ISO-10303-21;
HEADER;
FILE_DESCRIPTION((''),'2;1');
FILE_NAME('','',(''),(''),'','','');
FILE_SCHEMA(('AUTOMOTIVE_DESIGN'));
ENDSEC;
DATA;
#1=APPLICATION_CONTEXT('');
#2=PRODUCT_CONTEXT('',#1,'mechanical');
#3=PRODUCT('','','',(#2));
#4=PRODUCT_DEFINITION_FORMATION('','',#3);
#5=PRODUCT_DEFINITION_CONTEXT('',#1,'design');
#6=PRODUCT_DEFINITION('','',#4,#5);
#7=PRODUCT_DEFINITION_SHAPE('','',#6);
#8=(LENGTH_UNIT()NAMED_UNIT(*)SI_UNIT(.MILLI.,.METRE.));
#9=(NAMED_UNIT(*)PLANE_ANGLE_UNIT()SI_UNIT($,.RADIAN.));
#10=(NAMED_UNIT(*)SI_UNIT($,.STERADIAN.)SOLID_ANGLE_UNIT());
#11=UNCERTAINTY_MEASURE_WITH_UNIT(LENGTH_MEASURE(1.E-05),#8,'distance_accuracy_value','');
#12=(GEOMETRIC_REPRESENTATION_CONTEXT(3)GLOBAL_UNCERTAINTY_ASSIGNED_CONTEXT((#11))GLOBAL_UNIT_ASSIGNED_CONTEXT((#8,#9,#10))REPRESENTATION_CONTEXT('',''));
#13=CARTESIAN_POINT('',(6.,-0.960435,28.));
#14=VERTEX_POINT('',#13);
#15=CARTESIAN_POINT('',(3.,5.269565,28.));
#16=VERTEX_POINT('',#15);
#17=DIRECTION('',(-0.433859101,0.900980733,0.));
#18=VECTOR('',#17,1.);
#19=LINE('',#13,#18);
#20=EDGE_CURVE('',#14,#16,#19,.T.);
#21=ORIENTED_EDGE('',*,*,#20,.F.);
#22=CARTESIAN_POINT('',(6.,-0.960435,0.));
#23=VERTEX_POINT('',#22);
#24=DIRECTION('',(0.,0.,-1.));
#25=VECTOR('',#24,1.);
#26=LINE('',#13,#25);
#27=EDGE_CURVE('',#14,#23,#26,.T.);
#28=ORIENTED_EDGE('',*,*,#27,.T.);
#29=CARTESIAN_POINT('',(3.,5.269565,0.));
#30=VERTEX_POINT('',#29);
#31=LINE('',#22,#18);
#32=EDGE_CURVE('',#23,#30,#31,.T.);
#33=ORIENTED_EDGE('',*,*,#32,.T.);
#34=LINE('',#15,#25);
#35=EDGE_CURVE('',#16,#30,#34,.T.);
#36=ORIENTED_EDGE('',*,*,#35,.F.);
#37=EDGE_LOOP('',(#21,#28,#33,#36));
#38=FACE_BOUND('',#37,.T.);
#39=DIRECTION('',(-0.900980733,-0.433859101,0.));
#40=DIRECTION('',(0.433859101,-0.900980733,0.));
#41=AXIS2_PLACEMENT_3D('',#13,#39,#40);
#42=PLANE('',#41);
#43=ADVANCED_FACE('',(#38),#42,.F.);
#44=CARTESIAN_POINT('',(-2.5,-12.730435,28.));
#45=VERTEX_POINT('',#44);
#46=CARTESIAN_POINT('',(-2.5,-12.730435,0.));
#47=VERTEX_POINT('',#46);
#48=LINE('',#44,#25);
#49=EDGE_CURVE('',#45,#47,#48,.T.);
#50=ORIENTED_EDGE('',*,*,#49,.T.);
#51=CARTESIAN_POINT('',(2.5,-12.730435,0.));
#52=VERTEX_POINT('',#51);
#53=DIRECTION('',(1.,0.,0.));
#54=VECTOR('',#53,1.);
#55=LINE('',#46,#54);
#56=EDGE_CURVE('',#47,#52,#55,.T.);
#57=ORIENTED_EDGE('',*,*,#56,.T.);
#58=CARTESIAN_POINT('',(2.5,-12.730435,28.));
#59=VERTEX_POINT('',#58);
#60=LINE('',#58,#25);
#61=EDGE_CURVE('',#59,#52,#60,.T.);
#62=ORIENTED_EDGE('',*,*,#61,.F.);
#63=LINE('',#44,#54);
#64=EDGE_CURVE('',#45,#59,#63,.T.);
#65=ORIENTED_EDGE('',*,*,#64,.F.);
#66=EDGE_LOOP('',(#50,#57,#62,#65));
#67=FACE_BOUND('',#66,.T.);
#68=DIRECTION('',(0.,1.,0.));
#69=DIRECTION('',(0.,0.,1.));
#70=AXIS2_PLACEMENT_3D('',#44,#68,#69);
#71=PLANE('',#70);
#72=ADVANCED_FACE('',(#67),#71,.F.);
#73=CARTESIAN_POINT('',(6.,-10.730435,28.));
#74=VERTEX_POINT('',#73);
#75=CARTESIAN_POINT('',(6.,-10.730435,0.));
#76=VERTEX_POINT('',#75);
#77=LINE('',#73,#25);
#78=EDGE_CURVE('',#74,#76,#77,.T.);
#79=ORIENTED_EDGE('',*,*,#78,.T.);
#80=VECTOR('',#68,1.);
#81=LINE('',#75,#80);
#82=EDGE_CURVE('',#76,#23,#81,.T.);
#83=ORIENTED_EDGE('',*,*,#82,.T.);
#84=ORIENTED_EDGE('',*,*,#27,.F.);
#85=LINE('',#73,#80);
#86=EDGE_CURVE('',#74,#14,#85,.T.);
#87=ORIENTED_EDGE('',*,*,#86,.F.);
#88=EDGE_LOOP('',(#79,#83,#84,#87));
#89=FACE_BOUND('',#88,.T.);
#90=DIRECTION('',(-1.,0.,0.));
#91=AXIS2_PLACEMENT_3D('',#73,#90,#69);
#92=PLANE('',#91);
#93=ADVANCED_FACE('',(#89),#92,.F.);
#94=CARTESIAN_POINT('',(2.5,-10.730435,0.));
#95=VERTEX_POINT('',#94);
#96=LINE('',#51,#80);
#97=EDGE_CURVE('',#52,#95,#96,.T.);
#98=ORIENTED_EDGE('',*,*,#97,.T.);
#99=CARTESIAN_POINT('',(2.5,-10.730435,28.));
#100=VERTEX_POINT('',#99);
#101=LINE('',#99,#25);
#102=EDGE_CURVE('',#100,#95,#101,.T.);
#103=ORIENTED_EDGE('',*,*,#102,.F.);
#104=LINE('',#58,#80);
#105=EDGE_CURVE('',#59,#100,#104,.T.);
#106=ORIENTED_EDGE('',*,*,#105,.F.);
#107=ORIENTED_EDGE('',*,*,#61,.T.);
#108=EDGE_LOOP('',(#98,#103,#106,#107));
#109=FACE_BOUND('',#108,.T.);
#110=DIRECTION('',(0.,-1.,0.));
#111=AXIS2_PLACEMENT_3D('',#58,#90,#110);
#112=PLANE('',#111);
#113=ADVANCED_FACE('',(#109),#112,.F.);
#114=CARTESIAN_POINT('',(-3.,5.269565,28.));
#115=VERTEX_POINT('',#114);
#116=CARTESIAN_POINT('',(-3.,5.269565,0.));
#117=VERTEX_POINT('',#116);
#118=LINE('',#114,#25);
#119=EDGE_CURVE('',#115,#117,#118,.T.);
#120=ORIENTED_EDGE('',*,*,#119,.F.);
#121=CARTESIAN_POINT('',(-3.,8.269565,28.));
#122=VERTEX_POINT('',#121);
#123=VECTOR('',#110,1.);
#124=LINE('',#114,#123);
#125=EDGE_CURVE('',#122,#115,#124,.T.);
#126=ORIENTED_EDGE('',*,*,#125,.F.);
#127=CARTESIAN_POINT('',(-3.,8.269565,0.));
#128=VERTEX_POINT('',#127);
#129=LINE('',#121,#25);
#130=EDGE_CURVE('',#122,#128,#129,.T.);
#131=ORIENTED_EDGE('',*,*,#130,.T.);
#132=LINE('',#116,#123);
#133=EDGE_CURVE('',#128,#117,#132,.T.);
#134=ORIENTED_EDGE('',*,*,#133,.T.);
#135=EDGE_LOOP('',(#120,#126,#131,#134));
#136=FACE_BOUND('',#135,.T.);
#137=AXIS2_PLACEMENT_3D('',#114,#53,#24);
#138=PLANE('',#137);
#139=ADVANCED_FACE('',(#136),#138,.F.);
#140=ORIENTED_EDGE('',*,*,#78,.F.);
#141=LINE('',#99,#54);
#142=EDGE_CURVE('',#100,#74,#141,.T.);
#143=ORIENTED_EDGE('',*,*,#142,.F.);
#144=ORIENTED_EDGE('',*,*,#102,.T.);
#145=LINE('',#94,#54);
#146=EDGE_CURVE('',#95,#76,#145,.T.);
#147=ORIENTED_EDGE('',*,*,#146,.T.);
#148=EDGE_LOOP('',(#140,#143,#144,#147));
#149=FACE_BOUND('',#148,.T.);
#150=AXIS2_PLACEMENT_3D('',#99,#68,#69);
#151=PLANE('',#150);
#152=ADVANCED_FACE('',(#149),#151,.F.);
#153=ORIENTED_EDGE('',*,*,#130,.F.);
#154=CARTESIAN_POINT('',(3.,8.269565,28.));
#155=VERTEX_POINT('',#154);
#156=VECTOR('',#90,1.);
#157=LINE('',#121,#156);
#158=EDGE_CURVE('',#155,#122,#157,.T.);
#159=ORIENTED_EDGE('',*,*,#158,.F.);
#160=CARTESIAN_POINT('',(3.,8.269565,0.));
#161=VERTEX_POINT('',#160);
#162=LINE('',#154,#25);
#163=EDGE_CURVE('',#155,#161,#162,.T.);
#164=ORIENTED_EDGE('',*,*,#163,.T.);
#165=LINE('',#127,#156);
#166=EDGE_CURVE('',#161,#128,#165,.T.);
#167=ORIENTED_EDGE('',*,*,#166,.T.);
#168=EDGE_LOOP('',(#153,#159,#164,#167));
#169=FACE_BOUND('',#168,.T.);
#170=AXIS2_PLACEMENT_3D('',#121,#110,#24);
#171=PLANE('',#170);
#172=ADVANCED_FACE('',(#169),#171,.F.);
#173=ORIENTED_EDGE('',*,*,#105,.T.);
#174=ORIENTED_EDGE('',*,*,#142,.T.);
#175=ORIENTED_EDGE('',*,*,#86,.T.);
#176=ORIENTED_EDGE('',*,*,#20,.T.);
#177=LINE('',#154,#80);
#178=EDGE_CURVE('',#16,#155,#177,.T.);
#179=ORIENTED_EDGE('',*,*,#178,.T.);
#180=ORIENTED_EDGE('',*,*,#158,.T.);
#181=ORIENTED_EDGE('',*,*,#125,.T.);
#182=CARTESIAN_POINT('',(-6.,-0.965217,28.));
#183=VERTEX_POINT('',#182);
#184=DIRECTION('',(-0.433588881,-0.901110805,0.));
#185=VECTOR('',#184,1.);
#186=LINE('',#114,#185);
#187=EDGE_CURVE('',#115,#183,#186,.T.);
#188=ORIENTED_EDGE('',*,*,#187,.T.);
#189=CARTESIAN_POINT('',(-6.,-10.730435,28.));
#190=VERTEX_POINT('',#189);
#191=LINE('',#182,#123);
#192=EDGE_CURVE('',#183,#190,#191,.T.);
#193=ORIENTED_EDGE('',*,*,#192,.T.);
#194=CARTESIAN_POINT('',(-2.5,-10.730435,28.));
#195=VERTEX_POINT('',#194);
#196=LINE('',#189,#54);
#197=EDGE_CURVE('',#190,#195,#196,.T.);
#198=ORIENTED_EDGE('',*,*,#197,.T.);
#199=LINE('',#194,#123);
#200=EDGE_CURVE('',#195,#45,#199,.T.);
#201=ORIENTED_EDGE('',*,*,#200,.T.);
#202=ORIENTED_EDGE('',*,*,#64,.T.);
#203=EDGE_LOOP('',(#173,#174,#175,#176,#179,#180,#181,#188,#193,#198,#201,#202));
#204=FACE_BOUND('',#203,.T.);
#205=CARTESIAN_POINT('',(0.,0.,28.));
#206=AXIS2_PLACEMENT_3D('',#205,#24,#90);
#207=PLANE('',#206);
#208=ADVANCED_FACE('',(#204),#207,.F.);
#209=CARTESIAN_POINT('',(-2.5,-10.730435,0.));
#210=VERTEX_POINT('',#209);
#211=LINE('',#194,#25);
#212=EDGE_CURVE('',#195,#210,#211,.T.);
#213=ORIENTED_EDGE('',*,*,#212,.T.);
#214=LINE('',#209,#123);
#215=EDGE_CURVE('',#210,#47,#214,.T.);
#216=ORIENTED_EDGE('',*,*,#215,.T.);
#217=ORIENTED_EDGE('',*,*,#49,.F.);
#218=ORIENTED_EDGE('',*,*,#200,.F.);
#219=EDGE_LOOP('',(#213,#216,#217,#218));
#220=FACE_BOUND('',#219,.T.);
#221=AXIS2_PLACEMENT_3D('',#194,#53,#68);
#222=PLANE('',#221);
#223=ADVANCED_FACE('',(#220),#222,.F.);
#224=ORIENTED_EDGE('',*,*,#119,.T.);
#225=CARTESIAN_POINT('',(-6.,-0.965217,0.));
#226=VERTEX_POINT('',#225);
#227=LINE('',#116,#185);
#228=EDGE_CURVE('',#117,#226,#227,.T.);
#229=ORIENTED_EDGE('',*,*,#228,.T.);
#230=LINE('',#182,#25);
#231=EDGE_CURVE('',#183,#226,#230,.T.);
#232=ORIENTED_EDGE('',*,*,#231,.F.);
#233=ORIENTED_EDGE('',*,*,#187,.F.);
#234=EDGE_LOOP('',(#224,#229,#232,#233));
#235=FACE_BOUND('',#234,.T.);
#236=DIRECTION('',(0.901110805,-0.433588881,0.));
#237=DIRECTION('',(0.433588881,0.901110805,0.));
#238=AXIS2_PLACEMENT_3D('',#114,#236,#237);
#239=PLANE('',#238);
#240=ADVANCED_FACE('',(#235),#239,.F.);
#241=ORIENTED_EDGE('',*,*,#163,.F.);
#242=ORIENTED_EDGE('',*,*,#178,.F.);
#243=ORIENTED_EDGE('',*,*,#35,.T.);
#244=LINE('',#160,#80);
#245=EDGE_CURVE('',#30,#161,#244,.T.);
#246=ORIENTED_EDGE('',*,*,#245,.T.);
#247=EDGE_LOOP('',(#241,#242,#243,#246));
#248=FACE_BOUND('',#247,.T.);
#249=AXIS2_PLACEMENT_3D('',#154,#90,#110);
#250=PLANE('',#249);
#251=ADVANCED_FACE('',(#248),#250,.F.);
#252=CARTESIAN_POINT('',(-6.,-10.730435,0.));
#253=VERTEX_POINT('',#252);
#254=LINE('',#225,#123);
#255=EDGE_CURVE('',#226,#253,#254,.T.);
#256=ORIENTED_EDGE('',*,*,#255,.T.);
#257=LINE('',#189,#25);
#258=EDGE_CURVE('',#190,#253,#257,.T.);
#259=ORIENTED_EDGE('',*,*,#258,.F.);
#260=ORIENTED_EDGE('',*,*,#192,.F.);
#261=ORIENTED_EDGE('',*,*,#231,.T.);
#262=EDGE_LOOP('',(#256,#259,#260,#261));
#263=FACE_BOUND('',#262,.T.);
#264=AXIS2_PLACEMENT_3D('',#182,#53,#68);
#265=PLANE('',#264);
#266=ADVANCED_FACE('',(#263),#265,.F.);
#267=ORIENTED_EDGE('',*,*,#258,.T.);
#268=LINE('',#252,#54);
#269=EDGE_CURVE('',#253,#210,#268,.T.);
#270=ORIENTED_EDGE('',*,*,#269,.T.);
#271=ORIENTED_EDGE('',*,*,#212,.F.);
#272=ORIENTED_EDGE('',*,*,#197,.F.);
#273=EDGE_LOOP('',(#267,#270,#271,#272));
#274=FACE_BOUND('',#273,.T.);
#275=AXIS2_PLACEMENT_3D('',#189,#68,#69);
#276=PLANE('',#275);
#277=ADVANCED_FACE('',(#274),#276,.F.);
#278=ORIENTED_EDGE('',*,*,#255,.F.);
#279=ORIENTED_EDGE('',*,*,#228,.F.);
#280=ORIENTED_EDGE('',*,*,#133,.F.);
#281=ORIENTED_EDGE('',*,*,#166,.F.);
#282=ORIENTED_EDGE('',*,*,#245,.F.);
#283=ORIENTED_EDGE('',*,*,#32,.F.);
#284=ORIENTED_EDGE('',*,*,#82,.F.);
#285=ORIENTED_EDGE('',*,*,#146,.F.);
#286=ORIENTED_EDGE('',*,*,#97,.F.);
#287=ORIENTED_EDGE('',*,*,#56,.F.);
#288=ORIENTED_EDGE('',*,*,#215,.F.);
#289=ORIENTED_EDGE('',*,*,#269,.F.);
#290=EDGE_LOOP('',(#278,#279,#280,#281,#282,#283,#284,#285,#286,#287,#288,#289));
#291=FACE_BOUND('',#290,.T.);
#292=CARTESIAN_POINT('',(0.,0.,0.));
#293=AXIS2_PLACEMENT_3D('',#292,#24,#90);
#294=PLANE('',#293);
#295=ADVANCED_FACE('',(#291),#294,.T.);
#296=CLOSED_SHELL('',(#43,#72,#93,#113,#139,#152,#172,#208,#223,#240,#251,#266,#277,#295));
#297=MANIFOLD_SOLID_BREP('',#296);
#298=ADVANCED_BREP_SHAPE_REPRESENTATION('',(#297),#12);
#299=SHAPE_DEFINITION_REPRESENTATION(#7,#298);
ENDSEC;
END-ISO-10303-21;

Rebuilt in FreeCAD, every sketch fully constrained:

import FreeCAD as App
import Part
import Sketcher
from FreeCAD import Vector


def add_polygon(sketch, points):
    """Adds a closed chain of lines whose ends are joined by coincident constraints."""
    first, n = sketch.GeometryCount, len(points)
    for a, b in zip(points, points[1:] + points[:1]):
        sketch.addGeometry(Part.LineSegment(App.Vector(*a, 0), App.Vector(*b, 0)), False)
    for i in range(n):
        sketch.addConstraint(Sketcher.Constraint("Coincident", first + i, 2, first + (i + 1) % n, 1))

doc = App.newDocument("Part")
body = doc.addObject("PartDesign::Body", "Body")

# Sketch on XY plane
sketch1 = doc.addObject("Sketcher::SketchObject", "Sketch")
body.addObject(sketch1)
sketch1.AttachmentSupport = (doc.XY_Plane, [""])
sketch1.MapMode = "FlatFace"
add_polygon(sketch1, [(3, 8.3), (-3, 8.3), (-3, 5.3), (-6, -1), (-6, -10.7), (-2.5, -10.7), (-2.5, -12.7), (2.5, -12.7), (2.5, -10.7), (6, -10.7), (6, -1), (3, 5.3)])  # lines 0-11
sketch1.addConstraint([
    Sketcher.Constraint("Horizontal", 0),
    Sketcher.Constraint("Vertical", 1),
    Sketcher.Constraint("Vertical", 3),
    Sketcher.Constraint("Horizontal", 4),
    Sketcher.Constraint("Vertical", 5),
    Sketcher.Constraint("Horizontal", 6),
    Sketcher.Constraint("Vertical", 7),
    Sketcher.Constraint("Horizontal", 8),
    Sketcher.Constraint("Vertical", 9),
    Sketcher.Constraint("Vertical", 11),
    Sketcher.Constraint("Symmetric", 4, 2, 7, 2, -2),
    Sketcher.Constraint("Symmetric", 1, 2, 10, 2, -2),
    Sketcher.Constraint("Equal", 4, 8),
    Sketcher.Constraint("DistanceX", 0, 2, 0, 1, 6.0),
    Sketcher.Constraint("DistanceX", 6, 1, 6, 2, 5.0),
    Sketcher.Constraint("DistanceY", 1, 2, 1, 1, 3.0),
    Sketcher.Constraint("DistanceY", 5, 2, 5, 1, 2.0),
    Sketcher.Constraint("DistanceX", 4, 1, 4, 2, 3.5),
    Sketcher.Constraint("DistanceY", 3, 2, 1, 2, 16.0),
    Sketcher.Constraint("DistanceY", 9, 1, 9, 2, 9.77),
    Sketcher.Constraint("DistanceY", 3, 2, 3, 1, 9.765217),
    Sketcher.Constraint("DistanceY", -1, 1, 0, 2, 8.269565),
])
pad1 = doc.addObject("PartDesign::Pad", "Pad")
body.addObject(pad1)
pad1.Profile = sketch1
pad1.Length = 28

doc.recompute()
